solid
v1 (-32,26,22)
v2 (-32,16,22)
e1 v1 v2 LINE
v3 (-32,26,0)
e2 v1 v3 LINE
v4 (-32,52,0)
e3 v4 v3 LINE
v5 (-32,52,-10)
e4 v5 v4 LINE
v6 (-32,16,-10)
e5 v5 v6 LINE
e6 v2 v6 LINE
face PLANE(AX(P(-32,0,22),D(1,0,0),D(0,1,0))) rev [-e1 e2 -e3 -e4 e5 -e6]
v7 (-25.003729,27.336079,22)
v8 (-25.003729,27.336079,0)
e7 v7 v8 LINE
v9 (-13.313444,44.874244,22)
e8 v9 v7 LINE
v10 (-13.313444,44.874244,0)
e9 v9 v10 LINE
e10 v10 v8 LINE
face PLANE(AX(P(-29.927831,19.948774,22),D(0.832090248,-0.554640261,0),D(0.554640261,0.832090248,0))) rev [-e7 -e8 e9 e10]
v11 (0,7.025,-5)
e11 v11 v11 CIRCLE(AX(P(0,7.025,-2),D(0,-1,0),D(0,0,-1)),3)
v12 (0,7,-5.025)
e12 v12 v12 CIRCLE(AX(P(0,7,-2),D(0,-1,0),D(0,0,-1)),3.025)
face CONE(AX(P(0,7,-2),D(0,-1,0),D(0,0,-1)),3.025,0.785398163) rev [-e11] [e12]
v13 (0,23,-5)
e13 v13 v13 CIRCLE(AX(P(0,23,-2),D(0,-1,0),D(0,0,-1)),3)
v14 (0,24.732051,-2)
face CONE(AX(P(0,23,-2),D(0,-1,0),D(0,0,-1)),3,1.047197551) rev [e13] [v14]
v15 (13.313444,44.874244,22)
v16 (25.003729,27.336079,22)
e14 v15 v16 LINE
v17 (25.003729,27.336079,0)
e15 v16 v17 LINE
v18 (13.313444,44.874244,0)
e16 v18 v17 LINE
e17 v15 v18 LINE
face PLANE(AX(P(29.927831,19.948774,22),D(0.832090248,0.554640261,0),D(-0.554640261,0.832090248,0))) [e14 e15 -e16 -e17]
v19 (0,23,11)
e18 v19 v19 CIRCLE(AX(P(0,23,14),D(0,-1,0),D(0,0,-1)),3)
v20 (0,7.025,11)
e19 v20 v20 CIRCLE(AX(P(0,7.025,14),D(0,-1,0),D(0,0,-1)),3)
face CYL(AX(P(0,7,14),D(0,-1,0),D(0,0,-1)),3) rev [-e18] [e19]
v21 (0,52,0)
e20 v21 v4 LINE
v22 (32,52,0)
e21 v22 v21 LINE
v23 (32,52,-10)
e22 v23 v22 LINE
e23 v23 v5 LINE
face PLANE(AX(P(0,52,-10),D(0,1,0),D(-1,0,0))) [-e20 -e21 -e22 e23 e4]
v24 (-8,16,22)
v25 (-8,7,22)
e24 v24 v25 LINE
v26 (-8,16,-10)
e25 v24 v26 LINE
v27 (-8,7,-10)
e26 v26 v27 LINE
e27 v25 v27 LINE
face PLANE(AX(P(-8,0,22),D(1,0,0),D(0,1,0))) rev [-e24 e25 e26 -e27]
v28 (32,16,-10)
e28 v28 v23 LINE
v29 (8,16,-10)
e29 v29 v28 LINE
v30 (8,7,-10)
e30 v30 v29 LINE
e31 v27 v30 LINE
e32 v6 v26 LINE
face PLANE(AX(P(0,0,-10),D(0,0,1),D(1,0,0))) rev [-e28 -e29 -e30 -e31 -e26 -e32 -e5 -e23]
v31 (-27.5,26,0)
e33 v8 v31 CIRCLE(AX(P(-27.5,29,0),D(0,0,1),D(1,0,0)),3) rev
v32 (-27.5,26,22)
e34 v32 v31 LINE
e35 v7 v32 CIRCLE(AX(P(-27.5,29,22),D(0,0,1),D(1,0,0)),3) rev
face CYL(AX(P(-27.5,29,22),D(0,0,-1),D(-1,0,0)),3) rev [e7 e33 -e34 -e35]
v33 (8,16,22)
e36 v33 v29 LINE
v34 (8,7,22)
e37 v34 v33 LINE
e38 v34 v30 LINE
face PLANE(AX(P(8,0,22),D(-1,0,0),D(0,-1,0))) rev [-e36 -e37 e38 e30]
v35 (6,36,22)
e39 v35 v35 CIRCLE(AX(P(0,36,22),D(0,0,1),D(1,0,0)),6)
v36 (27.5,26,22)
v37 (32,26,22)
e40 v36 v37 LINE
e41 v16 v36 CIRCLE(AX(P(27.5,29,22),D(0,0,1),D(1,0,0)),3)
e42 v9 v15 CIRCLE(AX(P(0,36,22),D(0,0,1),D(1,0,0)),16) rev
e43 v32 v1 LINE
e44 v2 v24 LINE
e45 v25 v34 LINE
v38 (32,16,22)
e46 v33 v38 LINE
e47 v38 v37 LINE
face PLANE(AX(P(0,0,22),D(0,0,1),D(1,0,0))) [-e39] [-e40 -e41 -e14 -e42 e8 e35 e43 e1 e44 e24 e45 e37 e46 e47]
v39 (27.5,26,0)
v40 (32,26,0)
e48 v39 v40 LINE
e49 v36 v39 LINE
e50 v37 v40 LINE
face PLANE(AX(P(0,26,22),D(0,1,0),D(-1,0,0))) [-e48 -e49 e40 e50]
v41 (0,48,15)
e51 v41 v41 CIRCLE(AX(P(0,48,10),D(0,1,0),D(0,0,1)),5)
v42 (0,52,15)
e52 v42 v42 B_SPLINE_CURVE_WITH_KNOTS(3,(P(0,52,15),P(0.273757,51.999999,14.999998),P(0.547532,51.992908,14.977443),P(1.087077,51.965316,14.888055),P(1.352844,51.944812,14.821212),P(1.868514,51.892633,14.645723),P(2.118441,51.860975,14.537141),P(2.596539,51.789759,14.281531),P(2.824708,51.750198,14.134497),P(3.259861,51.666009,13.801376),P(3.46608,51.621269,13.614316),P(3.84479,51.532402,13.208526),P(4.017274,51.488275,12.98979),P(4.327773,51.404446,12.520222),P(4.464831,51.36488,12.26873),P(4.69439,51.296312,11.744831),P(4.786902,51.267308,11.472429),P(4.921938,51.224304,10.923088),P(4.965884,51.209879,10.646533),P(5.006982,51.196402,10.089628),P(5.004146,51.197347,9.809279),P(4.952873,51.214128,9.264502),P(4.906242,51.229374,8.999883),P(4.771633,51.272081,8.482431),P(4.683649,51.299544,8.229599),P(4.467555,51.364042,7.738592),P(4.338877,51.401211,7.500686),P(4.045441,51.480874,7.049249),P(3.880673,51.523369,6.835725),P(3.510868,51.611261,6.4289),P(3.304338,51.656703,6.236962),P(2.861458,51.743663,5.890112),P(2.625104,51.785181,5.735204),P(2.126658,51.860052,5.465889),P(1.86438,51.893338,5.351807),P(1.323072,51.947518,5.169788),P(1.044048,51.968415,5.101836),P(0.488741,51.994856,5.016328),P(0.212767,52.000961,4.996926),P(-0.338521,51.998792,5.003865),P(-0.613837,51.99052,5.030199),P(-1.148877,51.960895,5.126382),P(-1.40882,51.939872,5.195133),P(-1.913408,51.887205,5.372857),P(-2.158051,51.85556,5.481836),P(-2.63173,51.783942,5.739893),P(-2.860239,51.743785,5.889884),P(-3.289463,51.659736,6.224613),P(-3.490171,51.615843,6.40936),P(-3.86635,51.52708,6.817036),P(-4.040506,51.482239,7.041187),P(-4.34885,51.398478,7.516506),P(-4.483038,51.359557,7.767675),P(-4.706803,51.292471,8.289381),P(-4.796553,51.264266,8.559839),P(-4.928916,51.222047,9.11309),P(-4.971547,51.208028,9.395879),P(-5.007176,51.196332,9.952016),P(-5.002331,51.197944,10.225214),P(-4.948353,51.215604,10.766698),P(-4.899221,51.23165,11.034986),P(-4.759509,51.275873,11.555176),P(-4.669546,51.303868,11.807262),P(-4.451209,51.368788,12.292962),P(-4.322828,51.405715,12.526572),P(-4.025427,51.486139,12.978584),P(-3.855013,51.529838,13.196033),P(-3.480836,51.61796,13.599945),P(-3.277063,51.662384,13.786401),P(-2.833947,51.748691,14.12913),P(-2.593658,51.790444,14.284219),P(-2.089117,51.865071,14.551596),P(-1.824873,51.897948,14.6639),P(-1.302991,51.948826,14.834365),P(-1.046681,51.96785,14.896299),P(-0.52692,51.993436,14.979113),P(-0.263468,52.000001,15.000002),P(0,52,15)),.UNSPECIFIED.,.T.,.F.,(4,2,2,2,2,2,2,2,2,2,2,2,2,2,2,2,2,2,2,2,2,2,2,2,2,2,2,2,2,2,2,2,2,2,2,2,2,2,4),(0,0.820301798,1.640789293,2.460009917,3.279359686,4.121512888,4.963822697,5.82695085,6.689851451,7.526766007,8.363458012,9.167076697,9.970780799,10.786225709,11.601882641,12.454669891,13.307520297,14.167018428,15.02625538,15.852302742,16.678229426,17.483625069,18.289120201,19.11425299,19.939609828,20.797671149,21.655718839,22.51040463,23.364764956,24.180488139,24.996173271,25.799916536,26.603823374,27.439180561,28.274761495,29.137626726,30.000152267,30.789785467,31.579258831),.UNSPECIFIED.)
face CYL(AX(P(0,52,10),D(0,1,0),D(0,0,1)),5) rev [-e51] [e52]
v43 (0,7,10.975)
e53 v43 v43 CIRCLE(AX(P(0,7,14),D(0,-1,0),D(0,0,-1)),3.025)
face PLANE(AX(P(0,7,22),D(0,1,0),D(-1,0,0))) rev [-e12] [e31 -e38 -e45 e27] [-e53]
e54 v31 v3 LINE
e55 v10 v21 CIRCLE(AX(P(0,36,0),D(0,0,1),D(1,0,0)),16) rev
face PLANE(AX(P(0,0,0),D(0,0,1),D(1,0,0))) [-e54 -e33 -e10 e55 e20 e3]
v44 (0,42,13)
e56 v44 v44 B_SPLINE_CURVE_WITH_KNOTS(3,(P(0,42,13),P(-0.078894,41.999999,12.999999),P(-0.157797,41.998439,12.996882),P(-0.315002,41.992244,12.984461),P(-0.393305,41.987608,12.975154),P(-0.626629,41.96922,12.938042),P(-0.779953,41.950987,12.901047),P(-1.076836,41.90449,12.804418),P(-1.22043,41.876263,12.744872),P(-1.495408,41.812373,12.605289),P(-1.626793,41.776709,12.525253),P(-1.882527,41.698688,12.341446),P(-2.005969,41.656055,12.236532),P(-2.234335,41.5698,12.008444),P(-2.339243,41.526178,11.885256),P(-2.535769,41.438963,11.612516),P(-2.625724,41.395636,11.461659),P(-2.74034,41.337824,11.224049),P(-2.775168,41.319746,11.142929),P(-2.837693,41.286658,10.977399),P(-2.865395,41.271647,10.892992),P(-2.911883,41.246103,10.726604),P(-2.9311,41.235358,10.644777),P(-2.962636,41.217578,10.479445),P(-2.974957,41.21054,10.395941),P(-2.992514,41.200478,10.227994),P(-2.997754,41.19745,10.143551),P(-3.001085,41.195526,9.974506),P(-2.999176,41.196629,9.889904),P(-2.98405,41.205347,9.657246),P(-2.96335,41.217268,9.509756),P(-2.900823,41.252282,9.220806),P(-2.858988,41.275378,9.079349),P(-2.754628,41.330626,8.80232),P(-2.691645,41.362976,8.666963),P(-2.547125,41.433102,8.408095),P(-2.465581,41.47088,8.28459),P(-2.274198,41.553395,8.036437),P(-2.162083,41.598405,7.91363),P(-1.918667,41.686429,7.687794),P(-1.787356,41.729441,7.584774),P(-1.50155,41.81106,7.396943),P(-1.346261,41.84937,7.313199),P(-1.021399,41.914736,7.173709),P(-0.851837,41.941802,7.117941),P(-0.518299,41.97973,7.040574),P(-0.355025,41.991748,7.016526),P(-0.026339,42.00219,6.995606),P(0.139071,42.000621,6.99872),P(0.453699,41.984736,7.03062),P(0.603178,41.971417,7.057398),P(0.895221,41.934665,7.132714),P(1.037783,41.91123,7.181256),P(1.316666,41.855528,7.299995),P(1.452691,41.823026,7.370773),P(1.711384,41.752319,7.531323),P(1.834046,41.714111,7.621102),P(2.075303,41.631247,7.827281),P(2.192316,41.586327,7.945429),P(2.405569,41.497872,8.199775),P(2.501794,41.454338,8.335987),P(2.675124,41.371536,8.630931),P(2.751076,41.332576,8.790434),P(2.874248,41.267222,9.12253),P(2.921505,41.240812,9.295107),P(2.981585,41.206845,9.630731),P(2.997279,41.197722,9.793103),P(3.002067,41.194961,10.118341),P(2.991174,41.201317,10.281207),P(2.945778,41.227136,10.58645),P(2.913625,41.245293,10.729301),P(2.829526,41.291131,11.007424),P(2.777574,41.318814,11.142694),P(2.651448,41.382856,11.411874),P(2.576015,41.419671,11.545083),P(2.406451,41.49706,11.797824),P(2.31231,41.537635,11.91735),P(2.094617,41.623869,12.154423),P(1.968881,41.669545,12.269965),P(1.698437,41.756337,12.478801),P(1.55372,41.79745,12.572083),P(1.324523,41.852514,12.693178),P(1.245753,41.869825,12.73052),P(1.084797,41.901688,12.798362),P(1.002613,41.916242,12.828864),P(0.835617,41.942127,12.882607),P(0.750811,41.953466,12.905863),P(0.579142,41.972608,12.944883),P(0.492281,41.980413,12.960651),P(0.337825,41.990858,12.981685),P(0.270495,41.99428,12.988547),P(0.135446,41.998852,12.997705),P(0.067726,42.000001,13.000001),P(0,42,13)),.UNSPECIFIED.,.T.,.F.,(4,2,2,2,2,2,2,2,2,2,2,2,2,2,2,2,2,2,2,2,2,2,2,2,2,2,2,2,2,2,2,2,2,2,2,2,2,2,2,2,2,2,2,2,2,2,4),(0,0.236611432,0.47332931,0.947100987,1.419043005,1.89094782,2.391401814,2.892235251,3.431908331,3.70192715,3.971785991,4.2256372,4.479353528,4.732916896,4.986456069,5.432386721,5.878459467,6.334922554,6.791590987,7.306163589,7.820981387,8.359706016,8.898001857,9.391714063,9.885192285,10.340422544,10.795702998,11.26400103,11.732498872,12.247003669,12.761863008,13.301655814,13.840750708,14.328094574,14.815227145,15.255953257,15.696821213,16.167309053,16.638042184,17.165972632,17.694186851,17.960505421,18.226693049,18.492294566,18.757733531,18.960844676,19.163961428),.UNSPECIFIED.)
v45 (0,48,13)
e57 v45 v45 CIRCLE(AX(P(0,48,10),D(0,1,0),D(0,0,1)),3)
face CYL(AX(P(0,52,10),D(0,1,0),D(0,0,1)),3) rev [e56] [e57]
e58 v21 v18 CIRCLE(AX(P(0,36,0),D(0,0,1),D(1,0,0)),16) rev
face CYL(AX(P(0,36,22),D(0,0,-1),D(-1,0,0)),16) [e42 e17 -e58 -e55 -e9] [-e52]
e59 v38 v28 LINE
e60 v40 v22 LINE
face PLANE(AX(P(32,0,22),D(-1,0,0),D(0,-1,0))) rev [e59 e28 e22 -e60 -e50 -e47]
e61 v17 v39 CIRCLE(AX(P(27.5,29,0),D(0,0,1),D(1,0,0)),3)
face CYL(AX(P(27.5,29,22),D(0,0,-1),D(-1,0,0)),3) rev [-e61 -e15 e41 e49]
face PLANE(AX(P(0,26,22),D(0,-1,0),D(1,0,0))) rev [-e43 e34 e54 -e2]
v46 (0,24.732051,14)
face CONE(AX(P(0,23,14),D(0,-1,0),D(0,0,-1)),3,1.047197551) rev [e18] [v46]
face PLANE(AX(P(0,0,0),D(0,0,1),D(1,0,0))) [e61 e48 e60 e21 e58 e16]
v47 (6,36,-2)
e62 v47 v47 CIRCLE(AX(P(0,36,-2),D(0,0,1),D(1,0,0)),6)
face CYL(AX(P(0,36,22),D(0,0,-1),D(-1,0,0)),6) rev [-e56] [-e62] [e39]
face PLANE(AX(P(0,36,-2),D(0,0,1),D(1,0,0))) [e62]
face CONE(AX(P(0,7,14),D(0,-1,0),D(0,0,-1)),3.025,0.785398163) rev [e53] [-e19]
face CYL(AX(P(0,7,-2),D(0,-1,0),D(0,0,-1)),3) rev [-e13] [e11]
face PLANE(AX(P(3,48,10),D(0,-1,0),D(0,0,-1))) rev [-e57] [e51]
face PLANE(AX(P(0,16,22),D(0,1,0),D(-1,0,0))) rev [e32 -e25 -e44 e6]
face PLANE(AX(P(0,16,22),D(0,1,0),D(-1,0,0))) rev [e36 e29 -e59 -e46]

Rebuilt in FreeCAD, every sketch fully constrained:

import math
import FreeCAD as App
import Part
import Sketcher

V = App.Vector
Q = App.Units.Quantity

doc = App.newDocument("Part")
body = doc.addObject("PartDesign::Body", "Body")

sketch1 = body.newObject("Sketcher::SketchObject", "Sketch")
sketch1.AttachmentSupport = (doc.getObject("XY_Plane"), [""])
sketch1.MapMode = "FlatFace"
sketch1.addGeometry(Part.LineSegment(V(-32, 26, 0), V(-32, 16, 0)), False)
sketch1.addGeometry(Part.LineSegment(V(-32, 16, 0), V(-8, 16, 0)), False)
sketch1.addGeometry(Part.LineSegment(V(-8, 16, 0), V(-8, 7, 0)), False)
sketch1.addGeometry(Part.LineSegment(V(-8, 7, 0), V(8, 7, 0)), False)
sketch1.addGeometry(Part.LineSegment(V(8, 7, 0), V(8, 16, 0)), False)
sketch1.addGeometry(Part.LineSegment(V(8, 16, 0), V(32, 16, 0)), False)
sketch1.addGeometry(Part.LineSegment(V(32, 16, 0), V(32, 26, 0)), False)
sketch1.addGeometry(Part.LineSegment(V(32, 26, 0), V(27.5, 26, 0)), False)
sketch1.addGeometry(Part.ArcOfCircle(Part.Circle(V(27.5, 29, 0), V(0, 0, 1), 3), math.radians(-146.31406), math.radians(-90)), False)
sketch1.addGeometry(Part.LineSegment(V(25.003729, 27.336079, 0), V(13.313444, 44.874244, 0)), False)
sketch1.addGeometry(Part.ArcOfCircle(Part.Circle(V(0, 36, 0), V(0, 0, 1), 16), math.radians(33.68594), math.radians(90)), False)
sketch1.addGeometry(Part.ArcOfCircle(Part.Circle(V(0, 36, 0), V(0, 0, 1), 16), math.radians(90), math.radians(146.31406)), False)
sketch1.addGeometry(Part.LineSegment(V(-13.313444, 44.874244, 0), V(-25.003729, 27.336079, 0)), False)
sketch1.addGeometry(Part.ArcOfCircle(Part.Circle(V(-27.5, 29, 0), V(0, 0, 1), 3), math.radians(-90), math.radians(-33.68594)), False)
sketch1.addGeometry(Part.LineSegment(V(-27.5, 26, 0), V(-32, 26, 0)), False)
sketch1.addGeometry(Part.Circle(V(0, 36, 0), V(0, 0, 1), 6), False)
sketch1.addConstraint(Sketcher.Constraint("Coincident", 0, 2, 1, 1))
sketch1.addConstraint(Sketcher.Constraint("Coincident", 1, 2, 2, 1))
sketch1.addConstraint(Sketcher.Constraint("Coincident", 2, 2, 3, 1))
sketch1.addConstraint(Sketcher.Constraint("Coincident", 3, 2, 4, 1))
sketch1.addConstraint(Sketcher.Constraint("Coincident", 4, 2, 5, 1))
sketch1.addConstraint(Sketcher.Constraint("Coincident", 5, 2, 6, 1))
sketch1.addConstraint(Sketcher.Constraint("Coincident", 6, 2, 7, 1))
sketch1.addConstraint(Sketcher.Constraint("Tangent", 7, 2, 8, 2))
sketch1.addConstraint(Sketcher.Constraint("Tangent", 8, 1, 9, 1))
sketch1.addConstraint(Sketcher.Constraint("Tangent", 9, 2, 10, 1))
sketch1.addConstraint(Sketcher.Constraint("Tangent", 10, 2, 11, 1))
sketch1.addConstraint(Sketcher.Constraint("Tangent", 11, 2, 12, 1))
sketch1.addConstraint(Sketcher.Constraint("Tangent", 12, 2, 13, 2))
sketch1.addConstraint(Sketcher.Constraint("Tangent", 13, 1, 14, 1))
sketch1.addConstraint(Sketcher.Constraint("Coincident", 14, 2, 0, 1))
sketch1.addConstraint(Sketcher.Constraint("Vertical", 0))
sketch1.addConstraint(Sketcher.Constraint("Horizontal", 1))
sketch1.addConstraint(Sketcher.Constraint("Vertical", 2))
sketch1.addConstraint(Sketcher.Constraint("Horizontal", 3))
sketch1.addConstraint(Sketcher.Constraint("Vertical", 4))
sketch1.addConstraint(Sketcher.Constraint("Horizontal", 5))
sketch1.addConstraint(Sketcher.Constraint("Vertical", 6))
sketch1.addConstraint(Sketcher.Constraint("Horizontal", 7))
sketch1.addConstraint(Sketcher.Constraint("Horizontal", 14))
sketch1.addConstraint(Sketcher.Constraint("Coincident", 15, 3, 10, 3))
sketch1.addConstraint(Sketcher.Constraint("Equal", 10, 11))
sketch1.addConstraint(Sketcher.Constraint("Equal", 8, 13))
sketch1.addConstraint(Sketcher.Constraint("Symmetric", 8, 3, 13, 3, -2))
sketch1.addConstraint(Sketcher.Constraint("Symmetric", 1, 2, 4, 2, -2))
sketch1.addConstraint(Sketcher.Constraint("PointOnObject", 10, 3, -2))
sketch1.addConstraint(Sketcher.Constraint("PointOnObject", 10, 2, -2))
sketch1.addConstraint(Sketcher.Constraint("Equal", 1, 5))
sketch1.addConstraint(Sketcher.Constraint("Diameter", 15, Q("12 mm")))
sketch1.addConstraint(Sketcher.Constraint("Radius", 8, Q("3 mm")))
sketch1.addConstraint(Sketcher.Constraint("Radius", 10, Q("16 mm")))
sketch1.addConstraint(Sketcher.Constraint("DistanceX", 1, 1, 1, 2, Q("24 mm")))
sketch1.addConstraint(Sketcher.Constraint("DistanceX", 3, 1, 3, 2, Q("16 mm")))
sketch1.addConstraint(Sketcher.Constraint("DistanceY", 0, 2, 0, 1, Q("10 mm")))
sketch1.addConstraint(Sketcher.Constraint("DistanceY", 2, 2, 2, 1, Q("9 mm")))
sketch1.addConstraint(Sketcher.Constraint("DistanceX", 7, 2, 7, 1, Q("4.5 mm")))
sketch1.addConstraint(Sketcher.Constraint("DistanceY", -1, 1, 8, 3, Q("29 mm")))
sketch1.addConstraint(Sketcher.Constraint("DistanceY", -1, 1, 10, 3, Q("36 mm")))
pad1 = body.newObject("PartDesign::Pad", "Pad")
pad1.Profile = sketch1
pad1.Length = 22

sketch2 = body.newObject("Sketcher::SketchObject", "Sketch001")
sketch2.AttachmentSupport = (doc.getObject("XY_Plane"), [""])
sketch2.MapMode = "FlatFace"
sketch2.AttachmentOffset = App.Placement(V(0, 0, -10), App.Rotation())
sketch2.addGeometry(Part.LineSegment(V(32, 52, 0), V(-32, 52, 0)), False)
sketch2.addGeometry(Part.LineSegment(V(-32, 52, 0), V(-32, 16, 0)), False)
sketch2.addGeometry(Part.LineSegment(V(-32, 16, 0), V(32, 16, 0)), False)
sketch2.addGeometry(Part.LineSegment(V(32, 16, 0), V(32, 52, 0)), False)
sketch2.addConstraint(Sketcher.Constraint("Coincident", 0, 2, 1, 1))
sketch2.addConstraint(Sketcher.Constraint("Coincident", 1, 2, 2, 1))
sketch2.addConstraint(Sketcher.Constraint("Coincident", 2, 2, 3, 1))
sketch2.addConstraint(Sketcher.Constraint("Coincident", 3, 2, 0, 1))
sketch2.addConstraint(Sketcher.Constraint("Horizontal", 0))
sketch2.addConstraint(Sketcher.Constraint("Vertical", 1))
sketch2.addConstraint(Sketcher.Constraint("Horizontal", 2))
sketch2.addConstraint(Sketcher.Constraint("Vertical", 3))
sketch2.addConstraint(Sketcher.Constraint("DistanceX", 0, 2, 0, 1, Q("64 mm")))
sketch2.addConstraint(Sketcher.Constraint("DistanceY", 1, 2, 1, 1, Q("36 mm")))
sketch2.addConstraint(Sketcher.Constraint("DistanceX", 0, 2, -1, 1, Q("32 mm")))
sketch2.addConstraint(Sketcher.Constraint("DistanceY", -1, 1, 0, 2, Q("52 mm")))
pad2 = body.newObject("PartDesign::Pad", "Pad001")
pad2.Profile = sketch2
pad2.Length = 10

sketch3 = body.newObject("Sketcher::SketchObject", "Sketch002")
sketch3.AttachmentSupport = (doc.getObject("XY_Plane"), [""])
sketch3.MapMode = "FlatFace"
sketch3.AttachmentOffset = App.Placement(V(0, 0, -2), App.Rotation())
sketch3.addGeometry(Part.Circle(V(0, 36, 0), V(0, 0, 1), 6), False)
sketch3.addConstraint(Sketcher.Constraint("PointOnObject", 0, 3, -2))
sketch3.addConstraint(Sketcher.Constraint("Diameter", 0, Q("12 mm")))
sketch3.addConstraint(Sketcher.Constraint("DistanceY", -1, 1, 0, 3, Q("36 mm")))
pocket1 = body.newObject("PartDesign::Pocket", "Pocket")
pocket1.Profile = sketch3
pocket1.Length = 2
pocket1.Reversed = True

sketch4 = body.newObject("Sketcher::SketchObject", "Sketch003")
sketch4.AttachmentSupport = (doc.getObject("XY_Plane"), [""])
sketch4.MapMode = "FlatFace"
sketch4.addGeometry(Part.LineSegment(V(8, 16, 0), V(8, 7, 0)), False)
sketch4.addGeometry(Part.LineSegment(V(8, 7, 0), V(-8, 7, 0)), False)
sketch4.addGeometry(Part.LineSegment(V(-8, 7, 0), V(-8, 16, 0)), False)
sketch4.addGeometry(Part.LineSegment(V(-8, 16, 0), V(8, 16, 0)), False)
sketch4.addConstraint(Sketcher.Constraint("Coincident", 0, 2, 1, 1))
sketch4.addConstraint(Sketcher.Constraint("Coincident", 1, 2, 2, 1))
sketch4.addConstraint(Sketcher.Constraint("Coincident", 2, 2, 3, 1))
sketch4.addConstraint(Sketcher.Constraint("Coincident", 3, 2, 0, 1))
sketch4.addConstraint(Sketcher.Constraint("Vertical", 0))
sketch4.addConstraint(Sketcher.Constraint("Horizontal", 1))
sketch4.addConstraint(Sketcher.Constraint("Vertical", 2))
sketch4.addConstraint(Sketcher.Constraint("Horizontal", 3))
sketch4.addConstraint(Sketcher.Constraint("DistanceX", 1, 2, 1, 1, Q("16 mm")))
sketch4.addConstraint(Sketcher.Constraint("DistanceY", 0, 2, 0, 1, Q("9 mm")))
sketch4.addConstraint(Sketcher.Constraint("DistanceX", -1, 1, 0, 2, Q("8 mm")))
sketch4.addConstraint(Sketcher.Constraint("DistanceY", -1, 1, 0, 2, Q("7 mm")))
pad3 = body.newObject("PartDesign::Pad", "Pad002")
pad3.Profile = sketch4
pad3.Length = 10
pad3.Reversed = True

sketch5 = body.newObject("Sketcher::SketchObject", "Sketch004")
sketch5.AttachmentSupport = (doc.getObject("XZ_Plane"), [""])
sketch5.MapMode = "FlatFace"
sketch5.AttachmentOffset = App.Placement(V(0, 0, -7), App.Rotation())
sketch5.addGeometry(Part.Circle(V(0, 14, 0), V(0, 0, 1), 3), False)
sketch5.addGeometry(Part.Circle(V(0, -2, 0), V(0, 0, 1), 3), False)
sketch5.addConstraint(Sketcher.Constraint("Equal", 0, 1))
sketch5.addConstraint(Sketcher.Constraint("PointOnObject", 0, 3, -2))
sketch5.addConstraint(Sketcher.Constraint("PointOnObject", 1, 3, -2))
sketch5.addConstraint(Sketcher.Constraint("Diameter", 0, Q("6 mm")))
sketch5.addConstraint(Sketcher.Constraint("DistanceY", -1, 1, 0, 3, Q("14 mm")))
sketch5.addConstraint(Sketcher.Constraint("DistanceY", 1, 3, -1, 1, Q("2 mm")))
doc.recompute()
hole = body.newObject("PartDesign::Hole", "Hole")
hole.Profile = sketch5
hole.ThreadType = "None"
hole.Diameter = 6
hole.DepthType = "Dimension"
hole.Depth = 16
hole.DrillPoint = "Angled"
hole.DrillPointAngle = 120
hole.HoleCutType = "Countersink"
hole.HoleCutDiameter = 6.05
hole.HoleCutCountersinkAngle = 90

sketch6 = body.newObject("Sketcher::SketchObject", "Sketch005")
sketch6.AttachmentSupport = (doc.getObject("XZ_Plane"), [""])
sketch6.MapMode = "FlatFace"
sketch6.AttachmentOffset = App.Placement(V(0, 0, -52), App.Rotation())
sketch6.addGeometry(Part.Circle(V(0, 10, 0), V(0, 0, 1), 3), False)
sketch6.addConstraint(Sketcher.Constraint("PointOnObject", 0, 3, -2))
sketch6.addConstraint(Sketcher.Constraint("Diameter", 0, Q("6 mm")))
sketch6.addConstraint(Sketcher.Constraint("DistanceY", -1, 1, 0, 3, Q("10 mm")))
doc.recompute()
hole2 = body.newObject("PartDesign::Hole", "Hole001")
hole2.Profile = sketch6
hole2.ThreadType = "None"
hole2.Diameter = 6
hole2.DepthType = "Dimension"
hole2.Depth = 15
hole2.DrillPoint = "Flat"
hole2.HoleCutType = "Counterbore"
hole2.HoleCutDiameter = 10
hole2.HoleCutDepth = 4
hole2.Reversed = True

doc.recompute()
